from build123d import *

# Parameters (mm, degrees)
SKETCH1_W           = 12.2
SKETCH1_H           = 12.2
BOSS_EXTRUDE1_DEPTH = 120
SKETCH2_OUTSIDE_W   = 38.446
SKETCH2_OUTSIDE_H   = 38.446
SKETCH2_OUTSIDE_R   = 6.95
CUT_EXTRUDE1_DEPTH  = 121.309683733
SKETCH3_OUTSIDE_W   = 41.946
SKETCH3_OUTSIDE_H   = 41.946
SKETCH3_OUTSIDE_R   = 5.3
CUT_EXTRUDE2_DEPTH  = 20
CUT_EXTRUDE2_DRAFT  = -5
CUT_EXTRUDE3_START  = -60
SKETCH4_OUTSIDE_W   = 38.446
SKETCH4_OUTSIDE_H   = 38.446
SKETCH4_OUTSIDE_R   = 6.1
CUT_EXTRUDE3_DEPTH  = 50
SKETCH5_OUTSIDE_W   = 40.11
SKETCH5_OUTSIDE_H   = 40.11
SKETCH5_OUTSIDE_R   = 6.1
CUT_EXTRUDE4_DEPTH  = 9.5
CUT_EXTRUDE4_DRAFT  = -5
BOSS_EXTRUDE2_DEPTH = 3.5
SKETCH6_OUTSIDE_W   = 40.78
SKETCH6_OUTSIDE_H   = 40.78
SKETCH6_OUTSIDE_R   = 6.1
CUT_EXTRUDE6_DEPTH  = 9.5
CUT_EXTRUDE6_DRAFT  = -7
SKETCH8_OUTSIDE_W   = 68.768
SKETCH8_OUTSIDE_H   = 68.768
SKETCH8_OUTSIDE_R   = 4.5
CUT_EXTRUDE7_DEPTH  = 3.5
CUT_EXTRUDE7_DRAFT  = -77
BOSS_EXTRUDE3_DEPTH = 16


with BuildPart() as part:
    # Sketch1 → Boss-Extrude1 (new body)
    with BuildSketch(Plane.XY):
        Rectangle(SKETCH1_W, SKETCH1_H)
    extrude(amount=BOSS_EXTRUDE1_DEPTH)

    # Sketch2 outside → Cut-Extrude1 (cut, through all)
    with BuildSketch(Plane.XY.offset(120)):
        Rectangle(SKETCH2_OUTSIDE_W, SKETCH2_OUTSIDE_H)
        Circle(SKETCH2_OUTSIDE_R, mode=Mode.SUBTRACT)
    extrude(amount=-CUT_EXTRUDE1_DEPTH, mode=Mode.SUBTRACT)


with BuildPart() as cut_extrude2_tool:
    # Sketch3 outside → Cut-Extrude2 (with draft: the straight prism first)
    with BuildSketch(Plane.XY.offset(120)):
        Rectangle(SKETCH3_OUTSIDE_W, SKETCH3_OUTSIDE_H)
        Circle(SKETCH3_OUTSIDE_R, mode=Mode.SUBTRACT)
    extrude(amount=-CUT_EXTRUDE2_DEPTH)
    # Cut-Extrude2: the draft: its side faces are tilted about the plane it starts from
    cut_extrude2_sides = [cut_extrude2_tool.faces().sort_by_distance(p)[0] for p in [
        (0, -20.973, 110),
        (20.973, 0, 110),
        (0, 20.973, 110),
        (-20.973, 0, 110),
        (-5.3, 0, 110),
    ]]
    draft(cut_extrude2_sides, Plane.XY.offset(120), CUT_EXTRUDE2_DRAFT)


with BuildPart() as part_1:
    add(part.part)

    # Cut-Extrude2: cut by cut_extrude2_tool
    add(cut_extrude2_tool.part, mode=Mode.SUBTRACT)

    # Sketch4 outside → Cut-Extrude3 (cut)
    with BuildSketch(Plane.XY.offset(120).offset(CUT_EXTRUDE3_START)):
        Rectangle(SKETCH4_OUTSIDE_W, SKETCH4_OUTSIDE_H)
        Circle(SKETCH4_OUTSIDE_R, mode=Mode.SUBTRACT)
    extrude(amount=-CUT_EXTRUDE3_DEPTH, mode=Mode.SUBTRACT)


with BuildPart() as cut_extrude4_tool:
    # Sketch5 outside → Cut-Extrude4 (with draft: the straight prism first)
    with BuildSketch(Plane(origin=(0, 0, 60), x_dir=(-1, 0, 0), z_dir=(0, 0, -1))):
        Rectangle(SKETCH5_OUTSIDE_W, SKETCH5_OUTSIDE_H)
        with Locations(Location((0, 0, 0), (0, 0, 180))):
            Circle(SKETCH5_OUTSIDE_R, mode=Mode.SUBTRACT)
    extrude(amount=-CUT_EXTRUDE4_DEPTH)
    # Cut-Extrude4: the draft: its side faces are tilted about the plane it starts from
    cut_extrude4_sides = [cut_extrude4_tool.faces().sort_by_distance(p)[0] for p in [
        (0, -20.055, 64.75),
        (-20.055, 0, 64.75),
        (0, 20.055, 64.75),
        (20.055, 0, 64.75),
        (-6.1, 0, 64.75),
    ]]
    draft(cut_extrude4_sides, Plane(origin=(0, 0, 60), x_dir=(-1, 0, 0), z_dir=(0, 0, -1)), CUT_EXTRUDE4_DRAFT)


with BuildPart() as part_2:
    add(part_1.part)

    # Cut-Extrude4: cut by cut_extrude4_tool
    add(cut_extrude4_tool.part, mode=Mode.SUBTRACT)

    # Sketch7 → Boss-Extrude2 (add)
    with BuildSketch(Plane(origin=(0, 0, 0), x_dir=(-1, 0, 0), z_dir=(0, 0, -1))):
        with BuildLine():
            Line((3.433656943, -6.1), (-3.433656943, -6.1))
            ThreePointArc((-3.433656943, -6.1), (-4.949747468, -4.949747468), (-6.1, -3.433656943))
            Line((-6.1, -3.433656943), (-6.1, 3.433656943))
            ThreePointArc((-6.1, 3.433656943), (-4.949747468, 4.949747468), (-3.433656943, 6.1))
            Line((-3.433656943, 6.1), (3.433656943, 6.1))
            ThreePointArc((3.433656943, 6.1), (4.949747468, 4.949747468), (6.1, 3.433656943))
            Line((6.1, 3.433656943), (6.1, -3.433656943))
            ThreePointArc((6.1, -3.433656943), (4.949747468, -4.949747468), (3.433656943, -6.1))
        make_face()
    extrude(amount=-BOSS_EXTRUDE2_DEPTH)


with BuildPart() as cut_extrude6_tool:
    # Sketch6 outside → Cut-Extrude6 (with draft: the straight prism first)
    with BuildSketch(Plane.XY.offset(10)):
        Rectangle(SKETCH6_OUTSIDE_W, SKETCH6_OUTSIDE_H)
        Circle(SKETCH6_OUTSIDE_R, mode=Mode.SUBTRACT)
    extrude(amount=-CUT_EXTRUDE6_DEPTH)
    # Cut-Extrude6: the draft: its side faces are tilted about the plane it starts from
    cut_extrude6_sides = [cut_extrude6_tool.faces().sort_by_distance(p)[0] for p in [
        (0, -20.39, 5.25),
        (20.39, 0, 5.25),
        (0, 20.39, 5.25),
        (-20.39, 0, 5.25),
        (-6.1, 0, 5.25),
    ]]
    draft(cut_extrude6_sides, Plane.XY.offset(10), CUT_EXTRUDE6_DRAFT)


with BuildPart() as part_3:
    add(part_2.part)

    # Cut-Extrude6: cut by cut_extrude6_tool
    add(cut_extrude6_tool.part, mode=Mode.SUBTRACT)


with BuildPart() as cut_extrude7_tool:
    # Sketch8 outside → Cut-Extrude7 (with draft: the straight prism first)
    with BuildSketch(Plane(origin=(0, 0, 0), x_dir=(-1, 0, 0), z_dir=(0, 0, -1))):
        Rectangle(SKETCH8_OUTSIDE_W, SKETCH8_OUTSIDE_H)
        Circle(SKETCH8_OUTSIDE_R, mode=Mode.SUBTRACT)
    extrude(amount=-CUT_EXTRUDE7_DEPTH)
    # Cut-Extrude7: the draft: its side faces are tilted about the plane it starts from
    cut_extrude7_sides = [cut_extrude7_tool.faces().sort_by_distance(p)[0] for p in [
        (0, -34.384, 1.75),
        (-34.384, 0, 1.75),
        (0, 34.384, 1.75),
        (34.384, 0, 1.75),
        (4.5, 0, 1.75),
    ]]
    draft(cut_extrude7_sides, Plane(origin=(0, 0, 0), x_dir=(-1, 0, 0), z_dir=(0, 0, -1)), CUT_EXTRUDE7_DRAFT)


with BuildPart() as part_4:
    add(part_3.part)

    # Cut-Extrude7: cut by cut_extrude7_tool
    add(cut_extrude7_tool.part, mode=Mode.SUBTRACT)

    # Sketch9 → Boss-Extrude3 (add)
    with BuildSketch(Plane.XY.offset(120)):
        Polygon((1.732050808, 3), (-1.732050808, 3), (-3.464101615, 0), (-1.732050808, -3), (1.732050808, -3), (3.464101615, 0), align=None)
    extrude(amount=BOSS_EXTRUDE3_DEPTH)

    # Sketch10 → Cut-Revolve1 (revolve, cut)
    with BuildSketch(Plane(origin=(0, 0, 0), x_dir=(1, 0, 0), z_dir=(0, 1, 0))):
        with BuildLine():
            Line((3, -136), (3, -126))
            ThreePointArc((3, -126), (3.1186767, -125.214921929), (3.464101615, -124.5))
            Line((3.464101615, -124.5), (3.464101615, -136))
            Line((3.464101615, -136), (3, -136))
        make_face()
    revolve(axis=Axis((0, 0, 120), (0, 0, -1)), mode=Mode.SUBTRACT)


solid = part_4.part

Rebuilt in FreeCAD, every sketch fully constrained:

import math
import FreeCAD as App
import Part
import Sketcher

V = App.Vector
Q = App.Units.Quantity


def faces_at(feature, points):
    """Names of the faces that lie closest to the given points."""
    faces = feature.Shape.Faces
    near = lambda p: min(range(len(faces)), key=lambda i: faces[i].distToShape(Part.Vertex(*p))[0])
    return sorted({f"Face{near(p) + 1}" for p in points})

doc = App.newDocument("Part")
body = doc.addObject("PartDesign::Body", "Body")

# Sketch on XY plane
sketch1 = body.newObject("Sketcher::SketchObject", "Sketch")
sketch1.AttachmentSupport = (doc.getObject("XY_Plane"), [""])
sketch1.MapMode = "FlatFace"
sketch1.addGeometry(Part.LineSegment(V(-6, 6, 0), V(-6, -6, 0)), False)
sketch1.addGeometry(Part.LineSegment(V(-6, -6, 0), V(6, -6, 0)), False)
sketch1.addGeometry(Part.LineSegment(V(6, -6, 0), V(6, 6, 0)), False)
sketch1.addGeometry(Part.LineSegment(V(6, 6, 0), V(-6, 6, 0)), False)
sketch1.addConstraint(Sketcher.Constraint("Coincident", 0, 2, 1, 1))
sketch1.addConstraint(Sketcher.Constraint("Coincident", 1, 2, 2, 1))
sketch1.addConstraint(Sketcher.Constraint("Coincident", 2, 2, 3, 1))
sketch1.addConstraint(Sketcher.Constraint("Coincident", 3, 2, 0, 1))
sketch1.addConstraint(Sketcher.Constraint("Vertical", 0))
sketch1.addConstraint(Sketcher.Constraint("Horizontal", 1))
sketch1.addConstraint(Sketcher.Constraint("Vertical", 2))
sketch1.addConstraint(Sketcher.Constraint("Horizontal", 3))
sketch1.addConstraint(Sketcher.Constraint("Symmetric", 0, 2, 2, 2, -1, 1))
sketch1.addConstraint(Sketcher.Constraint("Equal", 3, 0))
sketch1.addConstraint(Sketcher.Constraint("DistanceX", 1, 1, 1, 2, 12.2))
pad1 = body.newObject("PartDesign::Pad", "Pad")
pad1.Profile = sketch1
pad1.Length = 120

# Sketch on XY plane
sketch2 = body.newObject("Sketcher::SketchObject", "Sketch001")
sketch2.AttachmentSupport = (doc.getObject("XY_Plane"), [""])
sketch2.MapMode = "FlatFace"
sketch2.AttachmentOffset = App.Placement(V(0, 0, 120), App.Rotation())
sketch2.addGeometry(Part.LineSegment(V(-19, 19, 0), V(-19, -19, 0)), False)
sketch2.addGeometry(Part.LineSegment(V(-19, -19, 0), V(19, -19, 0)), False)
sketch2.addGeometry(Part.LineSegment(V(19, -19, 0), V(19, 19, 0)), False)
sketch2.addGeometry(Part.LineSegment(V(19, 19, 0), V(-19, 19, 0)), False)
sketch2.addGeometry(Part.Circle(V(0, 0, 0), V(0, 0, 1), 7), False)
sketch2.addConstraint(Sketcher.Constraint("Coincident", 0, 2, 1, 1))
sketch2.addConstraint(Sketcher.Constraint("Coincident", 1, 2, 2, 1))
sketch2.addConstraint(Sketcher.Constraint("Coincident", 2, 2, 3, 1))
sketch2.addConstraint(Sketcher.Constraint("Coincident", 3, 2, 0, 1))
sketch2.addConstraint(Sketcher.Constraint("Vertical", 0))
sketch2.addConstraint(Sketcher.Constraint("Horizontal", 1))
sketch2.addConstraint(Sketcher.Constraint("Vertical", 2))
sketch2.addConstraint(Sketcher.Constraint("Horizontal", 3))
sketch2.addConstraint(Sketcher.Constraint("Coincident", 4, 3, -1, 1))
sketch2.addConstraint(Sketcher.Constraint("Symmetric", 0, 2, 2, 2, -1, 1))
sketch2.addConstraint(Sketcher.Constraint("Equal", 3, 0))
sketch2.addConstraint(Sketcher.Constraint("Diameter", 4, 13.9))
sketch2.addConstraint(Sketcher.Constraint("DistanceX", 1, 1, 1, 2, 38.446))
pocket1 = body.newObject("PartDesign::Pocket", "Pocket")
pocket1.Profile = sketch2
pocket1.Type = "ThroughAll"
body2 = doc.addObject("PartDesign::Body", "Body001")

# Sketch on XY plane
sketch3 = body2.newObject("Sketcher::SketchObject", "Sketch002")
sketch3.AttachmentSupport = (doc.getObject("XY_Plane001"), [""])
sketch3.MapMode = "FlatFace"
sketch3.AttachmentOffset = App.Placement(V(0, 0, 120), App.Rotation())
sketch3.addGeometry(Part.LineSegment(V(-21, 21, 0), V(-21, -21, 0)), False)
sketch3.addGeometry(Part.LineSegment(V(-21, -21, 0), V(21, -21, 0)), False)
sketch3.addGeometry(Part.LineSegment(V(21, -21, 0), V(21, 21, 0)), False)
sketch3.addGeometry(Part.LineSegment(V(21, 21, 0), V(-21, 21, 0)), False)
sketch3.addGeometry(Part.Circle(V(0, 0, 0), V(0, 0, 1), 5), False)
sketch3.addConstraint(Sketcher.Constraint("Coincident", 0, 2, 1, 1))
sketch3.addConstraint(Sketcher.Constraint("Coincident", 1, 2, 2, 1))
sketch3.addConstraint(Sketcher.Constraint("Coincident", 2, 2, 3, 1))
sketch3.addConstraint(Sketcher.Constraint("Coincident", 3, 2, 0, 1))
sketch3.addConstraint(Sketcher.Constraint("Vertical", 0))
sketch3.addConstraint(Sketcher.Constraint("Horizontal", 1))
sketch3.addConstraint(Sketcher.Constraint("Vertical", 2))
sketch3.addConstraint(Sketcher.Constraint("Horizontal", 3))
sketch3.addConstraint(Sketcher.Constraint("Coincident", 4, 3, -1, 1))
sketch3.addConstraint(Sketcher.Constraint("Symmetric", 0, 2, 2, 2, -1, 1))
sketch3.addConstraint(Sketcher.Constraint("Equal", 3, 0))
sketch3.addConstraint(Sketcher.Constraint("Diameter", 4, 10.6))
sketch3.addConstraint(Sketcher.Constraint("DistanceX", 1, 1, 1, 2, 41.946))
pad2 = body2.newObject("PartDesign::Pad", "Pad001")
pad2.Profile = sketch3
pad2.Length = 20
pad2.Reversed = True
doc.recompute()

datumplane = body2.newObject("PartDesign::Plane", "DatumPlane")
datumplane.AttachmentSupport = (doc.getObject("XY_Plane001"), [""])
datumplane.MapMode = "FlatFace"
datumplane.AttachmentOffset = App.Placement(V(0, 0, 120), App.Rotation())
draft = body2.newObject("PartDesign::Draft", "Draft")
draft.Base = (pad2, faces_at(pad2, [
    (0, -20.973, 110),
    (20.973, 0, 110),
    (0, 20.973, 110),
    (-20.973, 0, 110),
    (-5.3, 0, 110),
]))
draft.NeutralPlane = (datumplane, [""])
draft.Angle = 5
draft.Reversed = True
doc.recompute()

boolean = body.newObject("PartDesign::Boolean", "Boolean")
boolean.Type = "Cut"
boolean.addObjects([body2])

# Sketch on XY plane
sketch4 = body.newObject("Sketcher::SketchObject", "Sketch003")
sketch4.AttachmentSupport = (doc.getObject("XY_Plane"), [""])
sketch4.MapMode = "FlatFace"
sketch4.AttachmentOffset = App.Placement(V(0, 0, 60), App.Rotation())
sketch4.addGeometry(Part.LineSegment(V(-19, 19, 0), V(-19, -19, 0)), False)
sketch4.addGeometry(Part.LineSegment(V(-19, -19, 0), V(19, -19, 0)), False)
sketch4.addGeometry(Part.LineSegment(V(19, -19, 0), V(19, 19, 0)), False)
sketch4.addGeometry(Part.LineSegment(V(19, 19, 0), V(-19, 19, 0)), False)
sketch4.addGeometry(Part.Circle(V(0, 0, 0), V(0, 0, 1), 6), False)
sketch4.addConstraint(Sketcher.Constraint("Coincident", 0, 2, 1, 1))
sketch4.addConstraint(Sketcher.Constraint("Coincident", 1, 2, 2, 1))
sketch4.addConstraint(Sketcher.Constraint("Coincident", 2, 2, 3, 1))
sketch4.addConstraint(Sketcher.Constraint("Coincident", 3, 2, 0, 1))
sketch4.addConstraint(Sketcher.Constraint("Vertical", 0))
sketch4.addConstraint(Sketcher.Constraint("Horizontal", 1))
sketch4.addConstraint(Sketcher.Constraint("Vertical", 2))
sketch4.addConstraint(Sketcher.Constraint("Horizontal", 3))
sketch4.addConstraint(Sketcher.Constraint("Coincident", 4, 3, -1, 1))
sketch4.addConstraint(Sketcher.Constraint("Symmetric", 0, 2, 2, 2, -1, 1))
sketch4.addConstraint(Sketcher.Constraint("Equal", 3, 0))
sketch4.addConstraint(Sketcher.Constraint("Diameter", 4, 12.2))
sketch4.addConstraint(Sketcher.Constraint("DistanceX", 1, 1, 1, 2, 38.446))
pocket2 = body.newObject("PartDesign::Pocket", "Pocket001")
pocket2.Profile = sketch4
pocket2.Length = 50
body3 = doc.addObject("PartDesign::Body", "Body002")

# Sketch on XY plane
sketch5 = body3.newObject("Sketcher::SketchObject", "Sketch004")
sketch5.AttachmentSupport = (doc.getObject("XY_Plane002"), [""])
sketch5.MapMode = "FlatFace"
sketch5.AttachmentOffset = App.Placement(V(0, 0, 60), App.Rotation())
sketch5.addGeometry(Part.LineSegment(V(20, 20, 0), V(20, -20, 0)), False)
sketch5.addGeometry(Part.LineSegment(V(20, -20, 0), V(-20, -20, 0)), False)
sketch5.addGeometry(Part.LineSegment(V(-20, -20, 0), V(-20, 20, 0)), False)
sketch5.addGeometry(Part.LineSegment(V(-20, 20, 0), V(20, 20, 0)), False)
sketch5.addGeometry(Part.Circle(V(0, 0, 0), V(0, 0, 1), 6), False)
sketch5.addConstraint(Sketcher.Constraint("Coincident", 0, 2, 1, 1))
sketch5.addConstraint(Sketcher.Constraint("Coincident", 1, 2, 2, 1))
sketch5.addConstraint(Sketcher.Constraint("Coincident", 2, 2, 3, 1))
sketch5.addConstraint(Sketcher.Constraint("Coincident", 3, 2, 0, 1))
sketch5.addConstraint(Sketcher.Constraint("Vertical", 0))
sketch5.addConstraint(Sketcher.Constraint("Horizontal", 1))
sketch5.addConstraint(Sketcher.Constraint("Vertical", 2))
sketch5.addConstraint(Sketcher.Constraint("Horizontal", 3))
sketch5.addConstraint(Sketcher.Constraint("Coincident", 4, 3, -1, 1))
sketch5.addConstraint(Sketcher.Constraint("Symmetric", 0, 2, 2, 2, -1, 1))
sketch5.addConstraint(Sketcher.Constraint("Equal", 3, 0))
sketch5.addConstraint(Sketcher.Constraint("Diameter", 4, 12.2))
sketch5.addConstraint(Sketcher.Constraint("DistanceX", 1, 2, 1, 1, 40.11))
pad3 = body3.newObject("PartDesign::Pad", "Pad002")
pad3.Profile = sketch5
pad3.Length = 9.5
doc.recompute()

datumplane2 = body3.newObject("PartDesign::Plane", "DatumPlane001")
datumplane2.AttachmentSupport = (doc.getObject("XY_Plane002"), [""])
datumplane2.MapMode = "FlatFace"
datumplane2.AttachmentOffset = App.Placement(V(0, 0, 60), App.Rotation())
draft2 = body3.newObject("PartDesign::Draft", "Draft001")
draft2.Base = (pad3, faces_at(pad3, [
    (0, -20.055, 64.75),
    (-20.055, 0, 64.75),
    (0, 20.055, 64.75),
    (20.055, 0, 64.75),
    (-6.1, 0, 64.75),
]))
draft2.NeutralPlane = (datumplane2, [""])
draft2.Angle = 5
draft2.Reversed = False
doc.recompute()

boolean2 = body.newObject("PartDesign::Boolean", "Boolean001")
boolean2.Type = "Cut"
boolean2.addObjects([body3])

# Sketch on XY plane
sketch6 = body.newObject("Sketcher::SketchObject", "Sketch005")
sketch6.AttachmentSupport = (doc.getObject("XY_Plane"), [""])
sketch6.MapMode = "FlatFace"
sketch6.addGeometry(Part.LineSegment(V(3.4, -6.1, 0), V(-3.4, -6.1, 0)), False)
sketch6.addGeometry(Part.ArcOfCircle(Part.Circle(V(0, 0, 0), V(0, 0, 1), 7), math.radians(-151), math.radians(-119)), False)
sketch6.addGeometry(Part.LineSegment(V(-6.1, -3.4, 0), V(-6.1, 3.4, 0)), False)
sketch6.addGeometry(Part.ArcOfCircle(Part.Circle(V(0, 0, 0), V(0, 0, 1), 7), math.radians(119), math.radians(151)), False)
sketch6.addGeometry(Part.LineSegment(V(-3.4, 6.1, 0), V(3.4, 6.1, 0)), False)
sketch6.addGeometry(Part.ArcOfCircle(Part.Circle(V(0, 0, 0), V(0, 0, 1), 7), math.radians(29), math.radians(61)), False)
sketch6.addGeometry(Part.LineSegment(V(6.1, 3.4, 0), V(6.1, -3.4, 0)), False)
sketch6.addGeometry(Part.ArcOfCircle(Part.Circle(V(0, 0, 0), V(0, 0, 1), 7), math.radians(-61), math.radians(-29)), False)
sketch6.addConstraint(Sketcher.Constraint("Coincident", 0, 2, 1, 2))
sketch6.addConstraint(Sketcher.Constraint("Coincident", 1, 1, 2, 1))
sketch6.addConstraint(Sketcher.Constraint("Coincident", 2, 2, 3, 2))
sketch6.addConstraint(Sketcher.Constraint("Coincident", 3, 1, 4, 1))
sketch6.addConstraint(Sketcher.Constraint("Coincident", 4, 2, 5, 2))
sketch6.addConstraint(Sketcher.Constraint("Coincident", 5, 1, 6, 1))
sketch6.addConstraint(Sketcher.Constraint("Coincident", 6, 2, 7, 2))
sketch6.addConstraint(Sketcher.Constraint("Coincident", 7, 1, 0, 1))
sketch6.addConstraint(Sketcher.Constraint("Horizontal", 0))
sketch6.addConstraint(Sketcher.Constraint("Vertical", 2))
sketch6.addConstraint(Sketcher.Constraint("Horizontal", 4))
sketch6.addConstraint(Sketcher.Constraint("Vertical", 6))
sketch6.addConstraint(Sketcher.Constraint("Coincident", 1, 3, -1, 1))
sketch6.addConstraint(Sketcher.Constraint("Coincident", 3, 3, -1, 1))
sketch6.addConstraint(Sketcher.Constraint("Coincident", 5, 3, -1, 1))
sketch6.addConstraint(Sketcher.Constraint("Coincident", 7, 3, -1, 1))
sketch6.addConstraint(Sketcher.Constraint("Equal", 1, 3))
sketch6.addConstraint(Sketcher.Constraint("Equal", 3, 5))
sketch6.addConstraint(Sketcher.Constraint("Equal", 5, 7))
sketch6.addConstraint(Sketcher.Constraint("Horizontal", 2, 2, 5, 1))
sketch6.addConstraint(Sketcher.Constraint("Vertical", 0, 2, 3, 1))
sketch6.addConstraint(Sketcher.Constraint("Equal", 4, 2))
sketch6.addConstraint(Sketcher.Constraint("Radius", 1, 7.0))
sketch6.addConstraint(Sketcher.Constraint("DistanceY", 0, 2, -1, 1, 6.1))
pad4 = body.newObject("PartDesign::Pad", "Pad003")
pad4.Profile = sketch6
pad4.Length = 3.5
body4 = doc.addObject("PartDesign::Body", "Body003")

# Sketch on XY plane
sketch7 = body4.newObject("Sketcher::SketchObject", "Sketch006")
sketch7.AttachmentSupport = (doc.getObject("XY_Plane003"), [""])
sketch7.MapMode = "FlatFace"
sketch7.AttachmentOffset = App.Placement(V(0, 0, 10), App.Rotation())
sketch7.addGeometry(Part.LineSegment(V(-20, 20, 0), V(-20, -20, 0)), False)
sketch7.addGeometry(Part.LineSegment(V(-20, -20, 0), V(20, -20, 0)), False)
sketch7.addGeometry(Part.LineSegment(V(20, -20, 0), V(20, 20, 0)), False)
sketch7.addGeometry(Part.LineSegment(V(20, 20, 0), V(-20, 20, 0)), False)
sketch7.addGeometry(Part.Circle(V(0, 0, 0), V(0, 0, 1), 6), False)
sketch7.addConstraint(Sketcher.Constraint("Coincident", 0, 2, 1, 1))
sketch7.addConstraint(Sketcher.Constraint("Coincident", 1, 2, 2, 1))
sketch7.addConstraint(Sketcher.Constraint("Coincident", 2, 2, 3, 1))
sketch7.addConstraint(Sketcher.Constraint("Coincident", 3, 2, 0, 1))
sketch7.addConstraint(Sketcher.Constraint("Vertical", 0))
sketch7.addConstraint(Sketcher.Constraint("Horizontal", 1))
sketch7.addConstraint(Sketcher.Constraint("Vertical", 2))
sketch7.addConstraint(Sketcher.Constraint("Horizontal", 3))
sketch7.addConstraint(Sketcher.Constraint("Coincident", 4, 3, -1, 1))
sketch7.addConstraint(Sketcher.Constraint("Symmetric", 0, 2, 2, 2, -1, 1))
sketch7.addConstraint(Sketcher.Constraint("Equal", 3, 0))
sketch7.addConstraint(Sketcher.Constraint("Diameter", 4, 12.2))
sketch7.addConstraint(Sketcher.Constraint("DistanceX", 1, 1, 1, 2, 40.78))
pad5 = body4.newObject("PartDesign::Pad", "Pad004")
pad5.Profile = sketch7
pad5.Length = 9.5
pad5.Reversed = True
doc.recompute()

datumplane3 = body4.newObject("PartDesign::Plane", "DatumPlane002")
datumplane3.AttachmentSupport = (doc.getObject("XY_Plane003"), [""])
datumplane3.MapMode = "FlatFace"
datumplane3.AttachmentOffset = App.Placement(V(0, 0, 10), App.Rotation())
draft3 = body4.newObject("PartDesign::Draft", "Draft002")
draft3.Base = (pad5, faces_at(pad5, [
    (0, -20.39, 5.25),
    (20.39, 0, 5.25),
    (0, 20.39, 5.25),
    (-20.39, 0, 5.25),
    (-6.1, 0, 5.25),
]))
draft3.NeutralPlane = (datumplane3, [""])
draft3.Angle = 7
draft3.Reversed = True
doc.recompute()

boolean3 = body.newObject("PartDesign::Boolean", "Boolean002")
boolean3.Type = "Cut"
boolean3.addObjects([body4])
body5 = doc.addObject("PartDesign::Body", "Body004")

# Sketch on XY plane
sketch8 = body5.newObject("Sketcher::SketchObject", "Sketch007")
sketch8.AttachmentSupport = (doc.getObject("XY_Plane004"), [""])
sketch8.MapMode = "FlatFace"
sketch8.addGeometry(Part.LineSegment(V(34.4, 34.4, 0), V(34.4, -34.4, 0)), False)
sketch8.addGeometry(Part.LineSegment(V(34.4, -34.4, 0), V(-34.4, -34.4, 0)), False)
sketch8.addGeometry(Part.LineSegment(V(-34.4, -34.4, 0), V(-34.4, 34.4, 0)), False)
sketch8.addGeometry(Part.LineSegment(V(-34.4, 34.4, 0), V(34.4, 34.4, 0)), False)
sketch8.addGeometry(Part.Circle(V(0, 0, 0), V(0, 0, 1), 4.5), False)
sketch8.addConstraint(Sketcher.Constraint("Coincident", 0, 2, 1, 1))
sketch8.addConstraint(Sketcher.Constraint("Coincident", 1, 2, 2, 1))
sketch8.addConstraint(Sketcher.Constraint("Coincident", 2, 2, 3, 1))
sketch8.addConstraint(Sketcher.Constraint("Coincident", 3, 2, 0, 1))
sketch8.addConstraint(Sketcher.Constraint("Vertical", 0))
sketch8.addConstraint(Sketcher.Constraint("Horizontal", 1))
sketch8.addConstraint(Sketcher.Constraint("Vertical", 2))
sketch8.addConstraint(Sketcher.Constraint("Horizontal", 3))
sketch8.addConstraint(Sketcher.Constraint("Coincident", 4, 3, -1, 1))
sketch8.addConstraint(Sketcher.Constraint("Symmetric", 0, 2, 2, 2, -1, 1))
sketch8.addConstraint(Sketcher.Constraint("Equal", 3, 0))
sketch8.addConstraint(Sketcher.Constraint("Diameter", 4, 9.0))
sketch8.addConstraint(Sketcher.Constraint("DistanceX", 1, 2, 1, 1, 68.768))
pad6 = body5.newObject("PartDesign::Pad", "Pad005")
pad6.Profile = sketch8
pad6.Length = 3.5
doc.recompute()

draft4 = body5.newObject("PartDesign::Draft", "Draft003")
draft4.Base = (pad6, faces_at(pad6, [
    (0, -34.384, 1.75),
    (-34.384, 0, 1.75),
    (0, 34.384, 1.75),
    (34.384, 0, 1.75),
    (4.5, 0, 1.75),
]))
draft4.NeutralPlane = (doc.getObject("XY_Plane004"), [""])
draft4.Angle = 77
draft4.Reversed = False
doc.recompute()

boolean4 = body.newObject("PartDesign::Boolean", "Boolean003")
boolean4.Type = "Cut"
boolean4.addObjects([body5])

# Sketch on XY plane
sketch9 = body.newObject("Sketcher::SketchObject", "Sketch008")
sketch9.AttachmentSupport = (doc.getObject("XY_Plane"), [""])
sketch9.MapMode = "FlatFace"
sketch9.AttachmentOffset = App.Placement(V(0, 0, 120), App.Rotation())
sketch9.addGeometry(Part.LineSegment(V(1.7, 3, 0), V(-1.7, 3, 0)), False)
sketch9.addGeometry(Part.LineSegment(V(-1.7, 3, 0), V(-3.5, 0, 0)), False)
sketch9.addGeometry(Part.LineSegment(V(-3.5, 0, 0), V(-1.7, -3, 0)), False)
sketch9.addGeometry(Part.LineSegment(V(-1.7, -3, 0), V(1.7, -3, 0)), False)
sketch9.addGeometry(Part.LineSegment(V(1.7, -3, 0), V(3.5, 0, 0)), False)
sketch9.addGeometry(Part.LineSegment(V(3.5, 0, 0), V(1.7, 3, 0)), False)
sketch9.addConstraint(Sketcher.Constraint("Coincident", 0, 2, 1, 1))
sketch9.addConstraint(Sketcher.Constraint("Coincident", 1, 2, 2, 1))
sketch9.addConstraint(Sketcher.Constraint("Coincident", 2, 2, 3, 1))
sketch9.addConstraint(Sketcher.Constraint("Coincident", 3, 2, 4, 1))
sketch9.addConstraint(Sketcher.Constraint("Coincident", 4, 2, 5, 1))
sketch9.addConstraint(Sketcher.Constraint("Coincident", 5, 2, 0, 1))
sketch9.addConstraint(Sketcher.Constraint("Horizontal", 0))
sketch9.addConstraint(Sketcher.Constraint("Horizontal", 3))
sketch9.addConstraint(Sketcher.Constraint("Symmetric", 0, 2, 3, 2, -1, 1))
sketch9.addConstraint(Sketcher.Constraint("Symmetric", 1, 2, 4, 2, -1, 1))
sketch9.addConstraint(Sketcher.Constraint("PointOnObject", 1, 2, -1))
sketch9.addConstraint(Sketcher.Constraint("Parallel", 2, 5))
sketch9.addConstraint(Sketcher.Constraint("Vertical", 0, 2, 2, 2))
sketch9.addConstraint(Sketcher.Constraint("Angle", 1, Q("-120 deg")))
sketch9.addConstraint(Sketcher.Constraint("DistanceY", -1, 1, 0, 2, 3.0))
sketch9.addConstraint(Sketcher.Constraint("DistanceX", 0, 2, 0, 1, 3.464102))
pad7 = body.newObject("PartDesign::Pad", "Pad006")
pad7.Profile = sketch9
pad7.Length = 16

# Sketch on XZ plane
sketch10 = body.newObject("Sketcher::SketchObject", "Sketch009")
sketch10.AttachmentSupport = (doc.getObject("XZ_Plane"), [""])
sketch10.MapMode = "FlatFace"
sketch10.addGeometry(Part.LineSegment(V(3, 126, 0), V(3, 136, 0)), False)
sketch10.addGeometry(Part.LineSegment(V(3, 136, 0), V(3.46, 136, 0)), False)
sketch10.addGeometry(Part.LineSegment(V(3.46, 136, 0), V(3.46, 124.5, 0)), False)
sketch10.addGeometry(Part.ArcOfCircle(Part.Circle(V(5.66, 126, 0), V(0, 0, 1), 2.66), math.radians(180), math.radians(214)), False)
sketch10.addConstraint(Sketcher.Constraint("Coincident", 0, 2, 1, 1))
sketch10.addConstraint(Sketcher.Constraint("Coincident", 1, 2, 2, 1))
sketch10.addConstraint(Sketcher.Constraint("Coincident", 2, 2, 3, 2))
sketch10.addConstraint(Sketcher.Constraint("Tangent", 3, 1, 0, 1))
sketch10.addConstraint(Sketcher.Constraint("Vertical", 0))
sketch10.addConstraint(Sketcher.Constraint("Horizontal", 1))
sketch10.addConstraint(Sketcher.Constraint("Vertical", 2))
sketch10.addConstraint(Sketcher.Constraint("DistanceY", 0, 1, 0, 2, 10.0))
sketch10.addConstraint(Sketcher.Constraint("DistanceY", 2, 2, 2, 1, 11.5))
sketch10.addConstraint(Sketcher.Constraint("DistanceY", -1, 1, 3, 3, 126.0))
sketch10.addConstraint(Sketcher.Constraint("DistanceX", -1, 1, 0, 2, 3.0))
sketch10.addConstraint(Sketcher.Constraint("Radius", 3, 2.656089))
groove = body.newObject("PartDesign::Groove", "Groove")
groove.Profile = sketch10
groove.ReferenceAxis = (sketch10, ["V_Axis"])
groove.Angle = 360

doc.recompute()
